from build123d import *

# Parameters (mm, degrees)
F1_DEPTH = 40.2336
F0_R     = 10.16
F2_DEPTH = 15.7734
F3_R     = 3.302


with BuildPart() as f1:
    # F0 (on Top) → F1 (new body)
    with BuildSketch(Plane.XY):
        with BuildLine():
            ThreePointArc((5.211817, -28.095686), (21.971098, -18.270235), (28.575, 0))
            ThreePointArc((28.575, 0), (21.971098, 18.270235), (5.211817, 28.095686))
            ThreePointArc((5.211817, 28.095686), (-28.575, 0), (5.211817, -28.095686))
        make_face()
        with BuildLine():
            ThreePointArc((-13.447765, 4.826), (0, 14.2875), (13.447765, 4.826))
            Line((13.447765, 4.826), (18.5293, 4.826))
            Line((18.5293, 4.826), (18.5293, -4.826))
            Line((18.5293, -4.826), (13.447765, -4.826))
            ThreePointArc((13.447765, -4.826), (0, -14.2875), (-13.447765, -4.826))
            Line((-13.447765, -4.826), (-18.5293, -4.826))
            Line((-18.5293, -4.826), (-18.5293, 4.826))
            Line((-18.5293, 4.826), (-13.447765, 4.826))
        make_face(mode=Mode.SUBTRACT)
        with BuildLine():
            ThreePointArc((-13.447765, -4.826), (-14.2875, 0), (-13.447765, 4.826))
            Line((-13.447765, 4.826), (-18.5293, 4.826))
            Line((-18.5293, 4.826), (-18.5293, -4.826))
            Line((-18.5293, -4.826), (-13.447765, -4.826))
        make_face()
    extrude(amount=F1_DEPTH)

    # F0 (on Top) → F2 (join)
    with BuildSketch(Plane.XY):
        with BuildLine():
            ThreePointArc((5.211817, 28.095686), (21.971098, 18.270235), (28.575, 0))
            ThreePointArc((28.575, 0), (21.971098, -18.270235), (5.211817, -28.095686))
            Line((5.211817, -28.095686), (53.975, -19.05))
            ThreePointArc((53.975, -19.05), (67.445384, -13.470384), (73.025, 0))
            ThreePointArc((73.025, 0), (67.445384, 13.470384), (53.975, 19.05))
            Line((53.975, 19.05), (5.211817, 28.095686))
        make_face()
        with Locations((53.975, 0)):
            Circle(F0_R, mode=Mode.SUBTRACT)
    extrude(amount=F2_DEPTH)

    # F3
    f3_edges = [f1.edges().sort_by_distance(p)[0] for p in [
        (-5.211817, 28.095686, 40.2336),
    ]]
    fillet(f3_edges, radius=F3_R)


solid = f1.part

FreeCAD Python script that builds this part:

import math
import FreeCAD as App
import Part
import Sketcher
Q = App.Units.Quantity


def edges_at(feature, points):
    """Names of the edges that pass closest to the given points."""
    edges = feature.Shape.Edges
    near = lambda p: min(range(len(edges)), key=lambda i: edges[i].distToShape(Part.Vertex(*p))[0])
    return sorted({f"Edge{near(p) + 1}" for p in points})

doc = App.newDocument("Part")
body = doc.addObject("PartDesign::Body", "Body")

sketch1 = doc.addObject("Sketcher::SketchObject", "Sketch")
body.addObject(sketch1)
sketch1.AttachmentSupport = (doc.XY_Plane, [""])
sketch1.MapMode = "FlatFace"
sketch1.addGeometry([
    Part.ArcOfCircle(Part.Circle(App.Vector(0, 0, 0), App.Vector(0, 0, 1), 29), math.radians(-79), math.radians(0)),
    Part.ArcOfCircle(Part.Circle(App.Vector(0, 0, 0), App.Vector(0, 0, 1), 29), math.radians(0), math.radians(79)),
    Part.ArcOfCircle(Part.Circle(App.Vector(0, 0, 0), App.Vector(0, 0, 1), 29), math.radians(79), math.radians(281)),
    Part.ArcOfCircle(Part.Circle(App.Vector(0, 0, 0), App.Vector(0, 0, 1), 14), math.radians(-160), math.radians(-20)),
    Part.ArcOfCircle(Part.Circle(App.Vector(0, 0, 0), App.Vector(0, 0, 1), 14), math.radians(160), math.radians(200)),
    Part.ArcOfCircle(Part.Circle(App.Vector(0, 0, 0), App.Vector(0, 0, 1), 14), math.radians(20), math.radians(160)),
    Part.LineSegment(App.Vector(13, 5, 0), App.Vector(19, 5, 0)),
    Part.LineSegment(App.Vector(19, 5, 0), App.Vector(19, -5, 0)),
    Part.LineSegment(App.Vector(19, -5, 0), App.Vector(13, -5, 0)),
], False)
sketch1.addConstraint([
    Sketcher.Constraint("Tangent", 0, 2, 1, 1),
    Sketcher.Constraint("Tangent", 1, 2, 2, 1),
    Sketcher.Constraint("Tangent", 2, 2, 0, 1),
    Sketcher.Constraint("Tangent", 3, 1, 4, 2),
    Sketcher.Constraint("Tangent", 4, 1, 5, 2),
    Sketcher.Constraint("Coincident", 5, 1, 6, 1),
    Sketcher.Constraint("Coincident", 6, 2, 7, 1),
    Sketcher.Constraint("Coincident", 7, 2, 8, 1),
    Sketcher.Constraint("Coincident", 8, 2, 3, 2),
    Sketcher.Constraint("Horizontal", 6),
    Sketcher.Constraint("Vertical", 7),
    Sketcher.Constraint("Horizontal", 8),
    Sketcher.Constraint("Coincident", 0, 3, -1, 1),
    Sketcher.Constraint("Coincident", 3, 3, -1, 1),
    Sketcher.Constraint("Coincident", 5, 3, -1, 1),
    Sketcher.Constraint("PointOnObject", 0, 2, -1),
    Sketcher.Constraint("Horizontal", 4, 1, 5, 1),
    Sketcher.Constraint("Horizontal", 3, 1, 7, 2),
    Sketcher.Constraint("Vertical", 1, 2, 2, 2),
    Sketcher.Constraint("Vertical", 3, 1, 4, 1),
    Sketcher.Constraint("Radius", 0, Q("1.125 in")),
    Sketcher.Constraint("Radius", 3, Q("0.5625 in")),
    Sketcher.Constraint("DistanceY", 7, 2, 7, 1, Q("0.38 in")),
    Sketcher.Constraint("DistanceX", -1, 1, 6, 2, Q("0.7295 in")),
    Sketcher.Constraint("DistanceX", -1, 1, 1, 2, Q("5.211817 mm")),
])
pad1 = doc.addObject("PartDesign::Pad", "Pad")
body.addObject(pad1)
pad1.Profile = sketch1
pad1.Length = Q("1.584 in")

sketch2 = doc.addObject("Sketcher::SketchObject", "Sketch001")
body.addObject(sketch2)
sketch2.AttachmentSupport = (doc.XY_Plane, [""])
sketch2.MapMode = "FlatFace"
sketch2.addGeometry([
    Part.ArcOfCircle(Part.Circle(App.Vector(0, 0, 0), App.Vector(0, 0, 1), 29), math.radians(0), math.radians(79)),
    Part.ArcOfCircle(Part.Circle(App.Vector(0, 0, 0), App.Vector(0, 0, 1), 29), math.radians(-79), math.radians(0)),
    Part.LineSegment(App.Vector(5, -28, 0), App.Vector(54, -19, 0)),
    Part.ArcOfCircle(Part.Circle(App.Vector(54, 0, 0), App.Vector(0, 0, 1), 19), math.radians(-90), math.radians(0)),
    Part.ArcOfCircle(Part.Circle(App.Vector(54, 0, 0), App.Vector(0, 0, 1), 19), math.radians(0), math.radians(90)),
    Part.LineSegment(App.Vector(54, 19, 0), App.Vector(5, 28, 0)),
    Part.Circle(App.Vector(54, 0, 0), App.Vector(0, 0, 1), 10),
], False)
sketch2.addConstraint([
    Sketcher.Constraint("Tangent", 0, 1, 1, 2),
    Sketcher.Constraint("Tangent", 1, 1, 2, 1),
    Sketcher.Constraint("Coincident", 2, 2, 3, 1),
    Sketcher.Constraint("Tangent", 3, 2, 4, 1),
    Sketcher.Constraint("Coincident", 4, 2, 5, 1),
    Sketcher.Constraint("Tangent", 5, 2, 0, 2),
    Sketcher.Constraint("Coincident", 0, 3, -1, 1),
    Sketcher.Constraint("Coincident", 6, 3, 3, 3),
    Sketcher.Constraint("Equal", 0, 1),
    Sketcher.Constraint("Equal", 3, 4),
    Sketcher.Constraint("Symmetric", 2, 2, 4, 2, -1),
    Sketcher.Constraint("PointOnObject", 0, 1, -1),
    Sketcher.Constraint("PointOnObject", 3, 2, -1),
    Sketcher.Constraint("Vertical", 6, 3, 2, 2),
    Sketcher.Constraint("Diameter", 6, Q("0.8 in")),
    Sketcher.Constraint("Radius", 3, Q("0.75 in")),
    Sketcher.Constraint("Radius", 0, Q("1.125 in")),
    Sketcher.Constraint("DistanceX", 0, 1, 3, 3, Q("1 in")),
])
pad2 = doc.addObject("PartDesign::Pad", "Pad001")
body.addObject(pad2)
pad2.Profile = sketch2
pad2.Length = Q("0.621 in")
doc.recompute()

fillet = doc.addObject("PartDesign::Fillet", "Fillet")
body.addObject(fillet)
fillet.Base = (pad2, edges_at(pad2, [(-28.575, 0, 40.234)]))
fillet.Radius = Q("0.13 in")

doc.recompute()
